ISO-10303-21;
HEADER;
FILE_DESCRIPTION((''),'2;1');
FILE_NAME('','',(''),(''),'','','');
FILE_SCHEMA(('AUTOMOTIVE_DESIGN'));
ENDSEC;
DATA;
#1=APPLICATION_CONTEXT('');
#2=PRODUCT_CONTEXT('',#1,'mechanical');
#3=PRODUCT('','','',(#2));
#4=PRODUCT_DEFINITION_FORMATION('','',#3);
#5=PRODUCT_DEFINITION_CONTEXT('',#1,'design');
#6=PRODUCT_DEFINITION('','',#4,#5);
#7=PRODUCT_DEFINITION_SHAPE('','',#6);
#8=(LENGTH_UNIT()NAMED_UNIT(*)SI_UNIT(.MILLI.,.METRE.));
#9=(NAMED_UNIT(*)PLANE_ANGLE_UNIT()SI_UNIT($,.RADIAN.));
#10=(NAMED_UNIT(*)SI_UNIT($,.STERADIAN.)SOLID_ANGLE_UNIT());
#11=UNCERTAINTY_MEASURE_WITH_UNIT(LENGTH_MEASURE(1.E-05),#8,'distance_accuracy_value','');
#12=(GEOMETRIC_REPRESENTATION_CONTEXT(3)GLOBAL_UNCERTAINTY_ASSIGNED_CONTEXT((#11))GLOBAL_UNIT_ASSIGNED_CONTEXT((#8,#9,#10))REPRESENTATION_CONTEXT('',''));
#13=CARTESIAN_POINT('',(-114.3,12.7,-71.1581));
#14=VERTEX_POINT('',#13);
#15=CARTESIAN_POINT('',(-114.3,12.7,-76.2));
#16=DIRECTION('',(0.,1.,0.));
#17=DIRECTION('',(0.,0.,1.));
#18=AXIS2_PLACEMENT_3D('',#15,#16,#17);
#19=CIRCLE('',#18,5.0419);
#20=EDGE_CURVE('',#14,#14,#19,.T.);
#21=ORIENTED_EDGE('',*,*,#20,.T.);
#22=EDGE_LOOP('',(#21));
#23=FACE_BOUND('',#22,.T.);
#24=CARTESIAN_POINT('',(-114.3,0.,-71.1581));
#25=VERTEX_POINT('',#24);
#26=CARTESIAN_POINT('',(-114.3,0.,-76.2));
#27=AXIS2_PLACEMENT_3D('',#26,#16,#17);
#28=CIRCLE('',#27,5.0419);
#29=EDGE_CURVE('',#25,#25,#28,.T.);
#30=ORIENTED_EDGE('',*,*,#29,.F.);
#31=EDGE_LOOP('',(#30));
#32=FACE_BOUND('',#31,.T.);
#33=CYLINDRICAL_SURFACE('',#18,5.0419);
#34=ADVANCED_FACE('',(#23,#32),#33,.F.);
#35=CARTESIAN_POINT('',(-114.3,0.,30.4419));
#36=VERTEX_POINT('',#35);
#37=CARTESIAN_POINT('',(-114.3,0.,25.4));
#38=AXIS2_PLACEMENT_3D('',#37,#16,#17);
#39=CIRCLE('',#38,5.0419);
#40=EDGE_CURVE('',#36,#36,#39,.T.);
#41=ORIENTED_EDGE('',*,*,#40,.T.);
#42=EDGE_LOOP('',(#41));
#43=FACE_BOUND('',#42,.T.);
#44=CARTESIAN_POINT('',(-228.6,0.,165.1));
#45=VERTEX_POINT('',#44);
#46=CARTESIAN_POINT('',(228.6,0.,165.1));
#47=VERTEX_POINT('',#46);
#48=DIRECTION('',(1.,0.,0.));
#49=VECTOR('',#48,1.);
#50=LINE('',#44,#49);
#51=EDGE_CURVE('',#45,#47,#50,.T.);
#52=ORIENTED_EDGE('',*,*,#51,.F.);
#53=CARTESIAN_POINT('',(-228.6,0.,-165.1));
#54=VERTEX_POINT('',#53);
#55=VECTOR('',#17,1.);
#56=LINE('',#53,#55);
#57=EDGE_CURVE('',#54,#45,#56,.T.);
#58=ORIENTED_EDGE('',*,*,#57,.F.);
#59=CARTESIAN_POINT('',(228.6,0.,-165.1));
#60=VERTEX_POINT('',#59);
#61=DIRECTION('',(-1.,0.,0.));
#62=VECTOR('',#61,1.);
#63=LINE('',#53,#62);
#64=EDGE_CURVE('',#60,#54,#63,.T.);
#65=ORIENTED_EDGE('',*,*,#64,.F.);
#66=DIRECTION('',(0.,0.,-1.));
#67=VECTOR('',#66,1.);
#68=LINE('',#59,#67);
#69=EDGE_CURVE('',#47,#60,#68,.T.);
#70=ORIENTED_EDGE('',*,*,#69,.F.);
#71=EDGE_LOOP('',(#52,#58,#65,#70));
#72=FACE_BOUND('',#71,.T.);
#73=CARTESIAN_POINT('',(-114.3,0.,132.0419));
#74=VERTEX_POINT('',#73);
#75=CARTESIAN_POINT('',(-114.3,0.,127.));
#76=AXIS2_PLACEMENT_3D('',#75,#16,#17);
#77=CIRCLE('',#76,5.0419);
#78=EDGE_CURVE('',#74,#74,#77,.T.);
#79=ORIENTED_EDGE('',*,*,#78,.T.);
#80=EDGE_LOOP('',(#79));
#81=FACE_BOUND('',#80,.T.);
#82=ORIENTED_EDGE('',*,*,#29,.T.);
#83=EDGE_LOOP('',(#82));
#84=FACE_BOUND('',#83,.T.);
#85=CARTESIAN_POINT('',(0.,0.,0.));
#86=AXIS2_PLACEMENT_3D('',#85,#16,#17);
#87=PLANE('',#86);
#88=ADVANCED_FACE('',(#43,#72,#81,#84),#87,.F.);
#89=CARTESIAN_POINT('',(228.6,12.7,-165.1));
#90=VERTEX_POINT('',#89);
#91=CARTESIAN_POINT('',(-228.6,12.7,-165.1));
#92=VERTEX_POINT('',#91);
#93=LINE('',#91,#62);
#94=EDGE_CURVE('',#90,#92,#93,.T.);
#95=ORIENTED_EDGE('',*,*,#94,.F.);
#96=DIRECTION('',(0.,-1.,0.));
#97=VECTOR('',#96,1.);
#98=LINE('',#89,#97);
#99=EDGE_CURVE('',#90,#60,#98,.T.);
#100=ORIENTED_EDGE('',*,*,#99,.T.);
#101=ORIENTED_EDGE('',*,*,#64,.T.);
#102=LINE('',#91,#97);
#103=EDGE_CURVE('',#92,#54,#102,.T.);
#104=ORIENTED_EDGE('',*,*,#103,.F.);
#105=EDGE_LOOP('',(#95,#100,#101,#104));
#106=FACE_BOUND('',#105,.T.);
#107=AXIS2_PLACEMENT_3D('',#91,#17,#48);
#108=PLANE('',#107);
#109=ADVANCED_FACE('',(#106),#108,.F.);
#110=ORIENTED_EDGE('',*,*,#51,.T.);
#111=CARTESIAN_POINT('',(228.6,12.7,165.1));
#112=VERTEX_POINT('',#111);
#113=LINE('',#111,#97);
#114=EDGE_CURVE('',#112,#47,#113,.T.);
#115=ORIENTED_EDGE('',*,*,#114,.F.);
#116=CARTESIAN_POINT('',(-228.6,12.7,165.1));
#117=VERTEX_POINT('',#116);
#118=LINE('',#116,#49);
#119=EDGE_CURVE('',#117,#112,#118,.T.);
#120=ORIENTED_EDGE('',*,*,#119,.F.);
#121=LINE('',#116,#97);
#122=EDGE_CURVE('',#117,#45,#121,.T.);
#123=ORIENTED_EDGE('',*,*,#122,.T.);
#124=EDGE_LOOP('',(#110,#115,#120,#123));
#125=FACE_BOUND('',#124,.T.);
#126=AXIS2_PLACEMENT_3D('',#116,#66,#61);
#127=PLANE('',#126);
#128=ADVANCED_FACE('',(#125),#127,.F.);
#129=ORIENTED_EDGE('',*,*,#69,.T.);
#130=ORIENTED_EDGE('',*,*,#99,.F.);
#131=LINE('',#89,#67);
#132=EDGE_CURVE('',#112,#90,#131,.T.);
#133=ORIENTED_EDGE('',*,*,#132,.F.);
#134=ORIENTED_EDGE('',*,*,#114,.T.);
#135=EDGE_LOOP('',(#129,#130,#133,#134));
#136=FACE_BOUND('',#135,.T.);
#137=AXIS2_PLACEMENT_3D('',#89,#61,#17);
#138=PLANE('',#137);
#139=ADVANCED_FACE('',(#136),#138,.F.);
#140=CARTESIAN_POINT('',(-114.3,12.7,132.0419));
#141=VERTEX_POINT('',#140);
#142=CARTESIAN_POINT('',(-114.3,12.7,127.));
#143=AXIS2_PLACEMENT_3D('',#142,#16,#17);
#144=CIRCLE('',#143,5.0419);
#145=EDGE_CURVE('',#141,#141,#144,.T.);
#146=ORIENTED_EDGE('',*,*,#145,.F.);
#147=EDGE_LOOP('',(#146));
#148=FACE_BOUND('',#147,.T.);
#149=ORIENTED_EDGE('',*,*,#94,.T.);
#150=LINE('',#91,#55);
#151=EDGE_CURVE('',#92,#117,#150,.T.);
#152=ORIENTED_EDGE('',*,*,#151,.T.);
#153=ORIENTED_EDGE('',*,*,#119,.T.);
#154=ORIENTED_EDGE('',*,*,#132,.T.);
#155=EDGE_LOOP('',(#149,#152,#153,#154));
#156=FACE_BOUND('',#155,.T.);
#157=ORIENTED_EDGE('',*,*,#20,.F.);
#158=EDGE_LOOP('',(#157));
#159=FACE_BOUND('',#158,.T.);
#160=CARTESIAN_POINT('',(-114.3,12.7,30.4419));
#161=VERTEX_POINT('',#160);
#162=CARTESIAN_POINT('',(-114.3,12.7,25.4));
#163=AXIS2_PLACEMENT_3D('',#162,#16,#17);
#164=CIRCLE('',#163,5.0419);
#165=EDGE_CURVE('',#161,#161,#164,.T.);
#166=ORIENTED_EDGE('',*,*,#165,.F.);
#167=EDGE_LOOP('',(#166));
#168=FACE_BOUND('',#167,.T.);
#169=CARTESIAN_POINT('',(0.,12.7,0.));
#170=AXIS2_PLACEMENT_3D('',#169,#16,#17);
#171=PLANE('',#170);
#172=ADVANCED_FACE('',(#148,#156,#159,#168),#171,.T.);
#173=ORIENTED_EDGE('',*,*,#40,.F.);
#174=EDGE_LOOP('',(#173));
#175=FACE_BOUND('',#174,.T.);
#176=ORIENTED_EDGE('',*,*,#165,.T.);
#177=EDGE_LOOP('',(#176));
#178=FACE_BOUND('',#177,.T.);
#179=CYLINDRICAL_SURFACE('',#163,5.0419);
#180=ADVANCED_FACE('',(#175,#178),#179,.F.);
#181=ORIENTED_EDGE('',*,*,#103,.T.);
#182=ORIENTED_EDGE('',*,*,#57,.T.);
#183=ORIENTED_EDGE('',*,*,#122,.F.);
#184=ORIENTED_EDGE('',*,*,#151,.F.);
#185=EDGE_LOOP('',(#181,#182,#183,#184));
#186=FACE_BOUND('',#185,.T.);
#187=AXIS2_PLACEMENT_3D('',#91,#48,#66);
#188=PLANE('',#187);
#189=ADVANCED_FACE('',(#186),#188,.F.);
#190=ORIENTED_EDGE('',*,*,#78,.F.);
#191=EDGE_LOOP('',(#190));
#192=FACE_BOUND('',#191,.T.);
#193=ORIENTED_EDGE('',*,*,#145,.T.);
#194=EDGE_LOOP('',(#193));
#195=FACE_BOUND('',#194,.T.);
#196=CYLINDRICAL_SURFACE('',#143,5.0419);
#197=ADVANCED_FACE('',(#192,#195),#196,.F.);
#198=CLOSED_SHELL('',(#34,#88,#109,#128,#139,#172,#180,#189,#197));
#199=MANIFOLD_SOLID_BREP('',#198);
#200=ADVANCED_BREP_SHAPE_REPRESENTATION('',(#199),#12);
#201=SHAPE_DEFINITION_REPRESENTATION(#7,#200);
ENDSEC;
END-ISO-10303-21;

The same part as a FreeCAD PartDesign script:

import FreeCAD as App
import Part
import Sketcher
Q = App.Units.Quantity

doc = App.newDocument("Part")
body = doc.addObject("PartDesign::Body", "Body")

sketch1 = body.newObject("Sketcher::SketchObject", "Sketch")
sketch1.AttachmentSupport = (doc.getObject("XZ_Plane"), [""])
sketch1.MapMode = "FlatFace"
sketch1.addGeometry(Part.LineSegment(App.Vector(-229, -165, 0), App.Vector(-229, 165, 0)), False)
sketch1.addGeometry(Part.LineSegment(App.Vector(-229, 165, 0), App.Vector(229, 165, 0)), False)
sketch1.addGeometry(Part.LineSegment(App.Vector(229, 165, 0), App.Vector(229, -165, 0)), False)
sketch1.addGeometry(Part.LineSegment(App.Vector(229, -165, 0), App.Vector(-229, -165, 0)), False)
sketch1.addConstraint(Sketcher.Constraint("Coincident", 0, 2, 1, 1))
sketch1.addConstraint(Sketcher.Constraint("Coincident", 1, 2, 2, 1))
sketch1.addConstraint(Sketcher.Constraint("Coincident", 2, 2, 3, 1))
sketch1.addConstraint(Sketcher.Constraint("Coincident", 3, 2, 0, 1))
sketch1.addConstraint(Sketcher.Constraint("Vertical", 0))
sketch1.addConstraint(Sketcher.Constraint("Horizontal", 1))
sketch1.addConstraint(Sketcher.Constraint("Vertical", 2))
sketch1.addConstraint(Sketcher.Constraint("Horizontal", 3))
sketch1.addConstraint(Sketcher.Constraint("Symmetric", 0, 2, 2, 2, -1, 1))
sketch1.addConstraint(Sketcher.Constraint("DistanceX", 1, 1, 1, 2, Q("18 in")))
sketch1.addConstraint(Sketcher.Constraint("DistanceY", 0, 1, 0, 2, Q("13 in")))
pad1 = body.newObject("PartDesign::Pad", "Pad")
pad1.Profile = sketch1
pad1.Length = Q("0.5 in")
pad1.Reversed = True

sketch2 = body.newObject("Sketcher::SketchObject", "Sketch001")
sketch2.AttachmentSupport = (doc.getObject("XZ_Plane"), [""])
sketch2.MapMode = "FlatFace"
sketch2.AttachmentOffset = App.Placement(App.Vector(0, 0, -0.5 * 25.4), App.Rotation())
sketch2.addGeometry(Part.Circle(App.Vector(-114, -76, 0), App.Vector(0, 0, 1), 5), False)
sketch2.addGeometry(Part.Circle(App.Vector(-114, 25, 0), App.Vector(0, 0, 1), 5), False)
sketch2.addGeometry(Part.Circle(App.Vector(-114, 127, 0), App.Vector(0, 0, 1), 5), False)
sketch2.addConstraint(Sketcher.Constraint("Equal", 0, 1))
sketch2.addConstraint(Sketcher.Constraint("Equal", 1, 2))
sketch2.addConstraint(Sketcher.Constraint("Vertical", 0, 3, 1, 3))
sketch2.addConstraint(Sketcher.Constraint("Vertical", 1, 3, 2, 3))
sketch2.addConstraint(Sketcher.Constraint("Diameter", 0, Q("0.397 in")))
sketch2.addConstraint(Sketcher.Constraint("DistanceY", 0, 3, -1, 1, Q("3 in")))
sketch2.addConstraint(Sketcher.Constraint("DistanceY", -1, 1, 1, 3, Q("1 in")))
sketch2.addConstraint(Sketcher.Constraint("DistanceY", -1, 1, 2, 3, Q("5 in")))
sketch2.addConstraint(Sketcher.Constraint("DistanceX", 0, 3, -1, 1, Q("4.5 in")))
doc.recompute()
hole = body.newObject("PartDesign::Hole", "Hole")
hole.Profile = sketch2
hole.ThreadType = "None"
hole.Diameter = Q("0.397 in")
hole.DepthType = "ThroughAll"
hole.Reversed = True

doc.recompute()
